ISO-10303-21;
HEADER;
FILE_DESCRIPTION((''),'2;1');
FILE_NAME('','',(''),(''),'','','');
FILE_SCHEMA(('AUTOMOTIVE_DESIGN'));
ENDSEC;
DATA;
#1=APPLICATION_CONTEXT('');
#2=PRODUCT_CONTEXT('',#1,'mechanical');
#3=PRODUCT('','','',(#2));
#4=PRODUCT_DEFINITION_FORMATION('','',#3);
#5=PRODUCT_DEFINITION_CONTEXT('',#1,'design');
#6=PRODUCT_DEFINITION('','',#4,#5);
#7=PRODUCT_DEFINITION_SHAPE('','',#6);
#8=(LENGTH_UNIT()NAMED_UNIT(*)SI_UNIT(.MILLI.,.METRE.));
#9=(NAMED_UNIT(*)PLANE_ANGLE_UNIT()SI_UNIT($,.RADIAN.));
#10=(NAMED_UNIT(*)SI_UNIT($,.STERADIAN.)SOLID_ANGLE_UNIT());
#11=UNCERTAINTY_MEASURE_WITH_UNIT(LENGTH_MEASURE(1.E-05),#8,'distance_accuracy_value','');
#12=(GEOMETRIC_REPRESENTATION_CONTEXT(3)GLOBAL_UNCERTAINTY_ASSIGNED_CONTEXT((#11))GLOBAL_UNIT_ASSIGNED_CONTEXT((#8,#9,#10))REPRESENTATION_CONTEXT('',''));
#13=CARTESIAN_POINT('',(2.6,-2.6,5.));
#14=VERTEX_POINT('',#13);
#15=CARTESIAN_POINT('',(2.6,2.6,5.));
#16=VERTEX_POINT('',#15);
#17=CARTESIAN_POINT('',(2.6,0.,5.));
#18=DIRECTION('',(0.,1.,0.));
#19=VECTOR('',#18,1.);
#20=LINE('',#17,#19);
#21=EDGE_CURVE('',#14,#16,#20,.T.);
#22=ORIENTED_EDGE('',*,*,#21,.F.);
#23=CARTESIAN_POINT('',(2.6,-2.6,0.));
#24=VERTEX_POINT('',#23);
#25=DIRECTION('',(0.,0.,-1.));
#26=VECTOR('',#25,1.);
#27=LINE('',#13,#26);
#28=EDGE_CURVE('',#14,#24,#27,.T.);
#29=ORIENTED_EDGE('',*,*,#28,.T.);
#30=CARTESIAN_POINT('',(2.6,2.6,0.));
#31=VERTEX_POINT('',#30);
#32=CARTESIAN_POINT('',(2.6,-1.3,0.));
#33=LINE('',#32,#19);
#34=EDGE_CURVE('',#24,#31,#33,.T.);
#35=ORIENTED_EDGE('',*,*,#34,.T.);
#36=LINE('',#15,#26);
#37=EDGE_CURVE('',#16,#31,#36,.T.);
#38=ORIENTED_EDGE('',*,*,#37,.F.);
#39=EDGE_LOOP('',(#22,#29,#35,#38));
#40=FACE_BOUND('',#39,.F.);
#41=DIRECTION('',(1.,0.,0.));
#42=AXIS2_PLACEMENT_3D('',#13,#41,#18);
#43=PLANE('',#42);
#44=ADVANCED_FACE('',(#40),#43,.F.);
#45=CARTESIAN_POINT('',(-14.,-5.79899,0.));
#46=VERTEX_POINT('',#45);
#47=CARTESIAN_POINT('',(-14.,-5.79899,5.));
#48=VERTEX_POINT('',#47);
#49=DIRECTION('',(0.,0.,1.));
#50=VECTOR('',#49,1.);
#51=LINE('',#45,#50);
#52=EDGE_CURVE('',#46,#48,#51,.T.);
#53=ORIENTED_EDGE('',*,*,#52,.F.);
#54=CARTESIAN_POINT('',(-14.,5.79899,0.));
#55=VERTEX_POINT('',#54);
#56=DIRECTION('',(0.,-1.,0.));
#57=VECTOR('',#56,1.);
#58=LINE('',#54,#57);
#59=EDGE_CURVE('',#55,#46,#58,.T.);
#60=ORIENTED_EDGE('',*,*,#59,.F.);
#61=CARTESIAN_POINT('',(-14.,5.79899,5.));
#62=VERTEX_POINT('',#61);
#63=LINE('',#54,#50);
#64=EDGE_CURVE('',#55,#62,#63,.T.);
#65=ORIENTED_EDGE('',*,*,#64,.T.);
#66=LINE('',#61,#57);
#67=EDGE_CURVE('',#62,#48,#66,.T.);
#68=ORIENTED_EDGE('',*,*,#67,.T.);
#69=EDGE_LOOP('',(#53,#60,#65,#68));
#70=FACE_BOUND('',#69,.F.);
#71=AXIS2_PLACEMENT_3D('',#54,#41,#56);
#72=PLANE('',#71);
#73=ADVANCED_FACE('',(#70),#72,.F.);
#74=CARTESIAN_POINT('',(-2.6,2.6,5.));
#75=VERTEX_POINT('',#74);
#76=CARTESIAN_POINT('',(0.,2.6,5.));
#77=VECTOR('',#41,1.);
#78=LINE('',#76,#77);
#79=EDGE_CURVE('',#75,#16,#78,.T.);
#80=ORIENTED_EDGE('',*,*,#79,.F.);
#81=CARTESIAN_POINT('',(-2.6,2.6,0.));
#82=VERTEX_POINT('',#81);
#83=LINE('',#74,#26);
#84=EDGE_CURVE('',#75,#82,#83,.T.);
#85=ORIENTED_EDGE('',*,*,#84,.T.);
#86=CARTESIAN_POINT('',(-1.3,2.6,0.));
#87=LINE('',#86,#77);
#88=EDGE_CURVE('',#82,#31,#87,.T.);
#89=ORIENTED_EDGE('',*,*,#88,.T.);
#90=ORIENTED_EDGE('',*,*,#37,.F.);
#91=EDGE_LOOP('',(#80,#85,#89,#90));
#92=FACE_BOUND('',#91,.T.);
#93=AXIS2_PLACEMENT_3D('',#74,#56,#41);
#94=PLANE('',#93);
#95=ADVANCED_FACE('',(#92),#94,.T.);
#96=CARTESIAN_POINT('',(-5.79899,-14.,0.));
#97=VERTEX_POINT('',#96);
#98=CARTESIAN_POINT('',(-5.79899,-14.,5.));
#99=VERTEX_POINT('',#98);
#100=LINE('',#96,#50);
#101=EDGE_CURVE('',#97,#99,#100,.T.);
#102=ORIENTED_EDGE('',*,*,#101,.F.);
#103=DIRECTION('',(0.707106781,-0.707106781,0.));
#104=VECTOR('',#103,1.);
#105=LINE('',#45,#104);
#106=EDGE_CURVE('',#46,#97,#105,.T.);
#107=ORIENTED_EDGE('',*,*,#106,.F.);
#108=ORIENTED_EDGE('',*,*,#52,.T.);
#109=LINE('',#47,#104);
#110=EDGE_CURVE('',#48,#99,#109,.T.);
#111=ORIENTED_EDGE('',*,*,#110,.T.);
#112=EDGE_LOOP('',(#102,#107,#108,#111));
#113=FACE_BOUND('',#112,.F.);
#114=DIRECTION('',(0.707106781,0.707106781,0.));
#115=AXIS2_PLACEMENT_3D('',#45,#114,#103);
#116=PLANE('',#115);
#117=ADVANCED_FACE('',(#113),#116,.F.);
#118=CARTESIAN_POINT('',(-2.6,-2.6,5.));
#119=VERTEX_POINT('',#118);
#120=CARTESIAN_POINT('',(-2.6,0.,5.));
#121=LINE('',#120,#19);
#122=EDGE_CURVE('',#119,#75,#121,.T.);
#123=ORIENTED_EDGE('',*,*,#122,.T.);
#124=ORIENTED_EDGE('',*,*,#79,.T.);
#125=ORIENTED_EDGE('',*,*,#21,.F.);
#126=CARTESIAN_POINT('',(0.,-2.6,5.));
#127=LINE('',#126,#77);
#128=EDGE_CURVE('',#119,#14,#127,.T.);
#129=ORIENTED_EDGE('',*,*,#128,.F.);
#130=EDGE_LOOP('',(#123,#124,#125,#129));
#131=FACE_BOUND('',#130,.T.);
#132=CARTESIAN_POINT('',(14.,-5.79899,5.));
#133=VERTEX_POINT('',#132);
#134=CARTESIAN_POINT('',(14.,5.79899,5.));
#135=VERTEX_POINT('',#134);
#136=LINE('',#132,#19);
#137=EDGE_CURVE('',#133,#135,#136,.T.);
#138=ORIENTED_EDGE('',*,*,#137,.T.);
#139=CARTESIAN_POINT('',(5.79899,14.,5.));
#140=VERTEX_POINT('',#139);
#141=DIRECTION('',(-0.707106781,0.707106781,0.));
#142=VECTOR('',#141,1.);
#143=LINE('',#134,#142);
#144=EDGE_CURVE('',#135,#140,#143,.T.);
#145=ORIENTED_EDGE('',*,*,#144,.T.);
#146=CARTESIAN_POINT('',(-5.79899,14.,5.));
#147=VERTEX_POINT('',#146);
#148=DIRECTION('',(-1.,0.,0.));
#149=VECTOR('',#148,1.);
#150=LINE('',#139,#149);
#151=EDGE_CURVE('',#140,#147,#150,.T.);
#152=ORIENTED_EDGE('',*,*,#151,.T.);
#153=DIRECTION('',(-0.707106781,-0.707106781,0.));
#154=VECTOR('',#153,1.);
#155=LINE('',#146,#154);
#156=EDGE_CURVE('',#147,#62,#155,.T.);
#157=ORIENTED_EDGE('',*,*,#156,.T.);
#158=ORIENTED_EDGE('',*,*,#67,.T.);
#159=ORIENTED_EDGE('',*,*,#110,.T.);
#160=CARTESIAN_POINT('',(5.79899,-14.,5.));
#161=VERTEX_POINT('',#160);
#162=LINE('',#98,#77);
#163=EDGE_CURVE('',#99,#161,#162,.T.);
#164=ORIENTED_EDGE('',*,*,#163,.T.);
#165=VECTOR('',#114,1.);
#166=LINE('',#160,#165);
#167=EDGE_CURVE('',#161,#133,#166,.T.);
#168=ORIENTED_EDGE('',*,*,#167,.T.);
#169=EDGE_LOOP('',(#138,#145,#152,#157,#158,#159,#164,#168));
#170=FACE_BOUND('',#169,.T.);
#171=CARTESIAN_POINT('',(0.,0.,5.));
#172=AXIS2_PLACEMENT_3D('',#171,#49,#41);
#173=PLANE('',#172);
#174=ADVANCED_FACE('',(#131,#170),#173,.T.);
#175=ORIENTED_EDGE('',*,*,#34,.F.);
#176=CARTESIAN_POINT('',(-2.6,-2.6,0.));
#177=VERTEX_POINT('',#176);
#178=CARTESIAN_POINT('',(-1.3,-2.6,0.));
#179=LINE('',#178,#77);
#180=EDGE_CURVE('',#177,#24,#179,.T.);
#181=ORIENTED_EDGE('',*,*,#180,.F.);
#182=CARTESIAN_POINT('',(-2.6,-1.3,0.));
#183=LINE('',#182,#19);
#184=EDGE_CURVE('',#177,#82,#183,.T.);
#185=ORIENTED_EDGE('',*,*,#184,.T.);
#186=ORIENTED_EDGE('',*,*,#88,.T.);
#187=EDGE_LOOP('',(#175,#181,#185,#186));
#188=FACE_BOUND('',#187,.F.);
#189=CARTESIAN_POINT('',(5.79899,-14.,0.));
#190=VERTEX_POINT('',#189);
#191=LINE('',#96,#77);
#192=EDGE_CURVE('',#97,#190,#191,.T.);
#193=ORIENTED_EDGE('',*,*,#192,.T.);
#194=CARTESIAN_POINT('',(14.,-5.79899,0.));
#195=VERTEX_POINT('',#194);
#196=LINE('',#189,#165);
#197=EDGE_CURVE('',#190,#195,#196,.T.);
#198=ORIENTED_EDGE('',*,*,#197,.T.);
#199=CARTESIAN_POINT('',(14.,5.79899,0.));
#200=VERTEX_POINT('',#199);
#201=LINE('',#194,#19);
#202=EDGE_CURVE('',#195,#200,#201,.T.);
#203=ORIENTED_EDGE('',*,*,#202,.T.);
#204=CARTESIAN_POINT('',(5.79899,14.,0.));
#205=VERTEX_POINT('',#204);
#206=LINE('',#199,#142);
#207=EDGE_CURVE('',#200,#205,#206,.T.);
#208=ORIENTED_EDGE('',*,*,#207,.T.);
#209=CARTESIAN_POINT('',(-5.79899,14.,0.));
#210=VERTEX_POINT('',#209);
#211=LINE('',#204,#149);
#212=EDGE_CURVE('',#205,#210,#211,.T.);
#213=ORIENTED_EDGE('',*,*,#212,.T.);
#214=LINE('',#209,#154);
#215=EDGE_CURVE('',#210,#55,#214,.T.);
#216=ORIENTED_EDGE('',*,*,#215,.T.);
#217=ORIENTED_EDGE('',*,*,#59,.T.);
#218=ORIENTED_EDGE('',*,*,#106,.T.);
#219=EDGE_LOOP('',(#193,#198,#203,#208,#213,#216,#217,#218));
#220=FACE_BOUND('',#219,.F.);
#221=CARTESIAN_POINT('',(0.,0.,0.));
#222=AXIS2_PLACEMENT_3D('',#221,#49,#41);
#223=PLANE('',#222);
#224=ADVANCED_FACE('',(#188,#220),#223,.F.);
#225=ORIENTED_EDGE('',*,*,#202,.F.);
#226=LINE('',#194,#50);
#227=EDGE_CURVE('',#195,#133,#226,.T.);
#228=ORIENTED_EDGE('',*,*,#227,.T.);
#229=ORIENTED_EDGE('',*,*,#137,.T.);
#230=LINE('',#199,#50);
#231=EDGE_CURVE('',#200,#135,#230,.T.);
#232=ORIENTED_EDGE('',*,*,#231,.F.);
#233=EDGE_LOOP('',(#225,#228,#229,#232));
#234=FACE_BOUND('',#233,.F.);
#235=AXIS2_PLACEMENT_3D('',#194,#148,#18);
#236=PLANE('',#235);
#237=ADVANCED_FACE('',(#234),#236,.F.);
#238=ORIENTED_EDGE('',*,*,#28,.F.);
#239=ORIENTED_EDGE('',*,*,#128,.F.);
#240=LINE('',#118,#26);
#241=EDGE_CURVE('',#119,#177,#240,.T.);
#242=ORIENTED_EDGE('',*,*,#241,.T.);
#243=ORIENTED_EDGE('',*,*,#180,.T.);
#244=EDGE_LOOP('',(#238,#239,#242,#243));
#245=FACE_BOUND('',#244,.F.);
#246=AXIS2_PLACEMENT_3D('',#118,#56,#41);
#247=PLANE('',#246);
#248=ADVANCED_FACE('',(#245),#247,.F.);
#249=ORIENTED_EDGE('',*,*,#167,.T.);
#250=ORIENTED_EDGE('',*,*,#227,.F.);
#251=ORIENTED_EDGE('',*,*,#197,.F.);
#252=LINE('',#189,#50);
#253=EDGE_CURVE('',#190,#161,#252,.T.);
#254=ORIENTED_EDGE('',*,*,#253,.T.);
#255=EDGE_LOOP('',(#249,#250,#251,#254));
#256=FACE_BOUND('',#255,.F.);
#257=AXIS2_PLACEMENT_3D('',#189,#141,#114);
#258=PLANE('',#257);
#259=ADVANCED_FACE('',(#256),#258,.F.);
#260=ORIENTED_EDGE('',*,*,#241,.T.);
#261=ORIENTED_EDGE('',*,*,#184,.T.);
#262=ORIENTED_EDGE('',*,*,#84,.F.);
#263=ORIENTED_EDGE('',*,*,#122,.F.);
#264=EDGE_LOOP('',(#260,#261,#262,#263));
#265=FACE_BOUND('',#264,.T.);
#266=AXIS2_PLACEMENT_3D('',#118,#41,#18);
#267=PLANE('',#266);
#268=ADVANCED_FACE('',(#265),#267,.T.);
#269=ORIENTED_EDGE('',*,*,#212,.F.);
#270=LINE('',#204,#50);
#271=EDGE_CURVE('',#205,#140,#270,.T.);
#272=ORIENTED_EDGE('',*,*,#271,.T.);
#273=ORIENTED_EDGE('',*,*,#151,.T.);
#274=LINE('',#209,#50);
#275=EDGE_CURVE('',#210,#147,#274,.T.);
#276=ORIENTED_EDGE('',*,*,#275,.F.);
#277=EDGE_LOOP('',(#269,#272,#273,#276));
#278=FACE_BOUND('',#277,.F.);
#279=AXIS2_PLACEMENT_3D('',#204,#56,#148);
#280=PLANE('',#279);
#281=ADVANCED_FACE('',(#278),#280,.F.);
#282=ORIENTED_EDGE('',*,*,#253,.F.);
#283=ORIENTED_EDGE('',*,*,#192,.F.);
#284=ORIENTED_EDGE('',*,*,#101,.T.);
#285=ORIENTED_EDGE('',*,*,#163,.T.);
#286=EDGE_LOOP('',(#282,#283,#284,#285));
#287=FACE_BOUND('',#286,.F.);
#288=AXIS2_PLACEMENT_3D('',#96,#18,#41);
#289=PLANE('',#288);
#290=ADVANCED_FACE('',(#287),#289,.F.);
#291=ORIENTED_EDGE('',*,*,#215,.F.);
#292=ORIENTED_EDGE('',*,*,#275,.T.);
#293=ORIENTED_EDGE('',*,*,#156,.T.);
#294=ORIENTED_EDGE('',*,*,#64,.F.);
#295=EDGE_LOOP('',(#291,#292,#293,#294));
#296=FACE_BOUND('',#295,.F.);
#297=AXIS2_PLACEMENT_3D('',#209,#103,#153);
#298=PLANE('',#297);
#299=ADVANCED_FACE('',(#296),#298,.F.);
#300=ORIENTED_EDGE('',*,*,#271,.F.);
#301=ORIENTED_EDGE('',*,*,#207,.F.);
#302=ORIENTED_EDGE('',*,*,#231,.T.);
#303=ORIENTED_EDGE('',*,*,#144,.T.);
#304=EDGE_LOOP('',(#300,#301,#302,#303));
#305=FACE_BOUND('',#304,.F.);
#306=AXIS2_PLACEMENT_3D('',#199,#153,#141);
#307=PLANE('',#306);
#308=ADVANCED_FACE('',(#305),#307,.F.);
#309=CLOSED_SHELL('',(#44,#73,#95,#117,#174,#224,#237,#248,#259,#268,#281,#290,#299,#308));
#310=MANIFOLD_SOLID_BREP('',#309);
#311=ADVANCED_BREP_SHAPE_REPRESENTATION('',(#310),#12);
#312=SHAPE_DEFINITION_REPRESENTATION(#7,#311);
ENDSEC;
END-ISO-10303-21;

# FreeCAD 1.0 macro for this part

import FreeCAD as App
import Part
import Sketcher

V = App.Vector

doc = App.newDocument("Part")
params = doc.addObject("Spreadsheet::Sheet", "Params")
for row, (alias, value) in enumerate([
    ("pad1_length", "5 mm"),
    ("sketch2_width", "5.2 mm"),
    ("pocket1_length", "25 mm"),
], start=1):
    params.set(f"A{row}", alias)
    params.set(f"B{row}", "=" + value)
    params.setAlias(f"B{row}", alias)

body = doc.addObject("PartDesign::Body", "Body")

sketch1 = doc.addObject("Sketcher::SketchObject", "Sketch")
body.addObject(sketch1)
sketch1.AttachmentSupport = (doc.XY_Plane, [""])
sketch1.MapMode = "FlatFace"
sketch1.addGeometry([
    Part.LineSegment(V(-5.79899, -14, 0), V(5.79899, -14, 0)),
    Part.LineSegment(V(5.79899, -14, 0), V(14, -5.79899, 0)),
    Part.LineSegment(V(14, -5.79899, 0), V(14, 5.79899, 0)),
    Part.LineSegment(V(14, 5.79899, 0), V(5.79899, 14, 0)),
    Part.LineSegment(V(5.79899, 14, 0), V(-5.79899, 14, 0)),
    Part.LineSegment(V(-5.79899, 14, 0), V(-14, 5.79899, 0)),
    Part.LineSegment(V(-14, 5.79899, 0), V(-14, -5.79899, 0)),
    Part.LineSegment(V(-14, -5.79899, 0), V(-5.79899, -14, 0)),
], False)
sketch1.addConstraint([
    Sketcher.Constraint("Coincident", 0, 2, 1, 1),
    Sketcher.Constraint("Coincident", 1, 2, 2, 1),
    Sketcher.Constraint("Coincident", 2, 2, 3, 1),
    Sketcher.Constraint("Coincident", 3, 2, 4, 1),
    Sketcher.Constraint("Coincident", 4, 2, 5, 1),
    Sketcher.Constraint("Coincident", 5, 2, 6, 1),
    Sketcher.Constraint("Coincident", 6, 2, 7, 1),
    Sketcher.Constraint("Coincident", 7, 2, 0, 1),
    Sketcher.Constraint("Horizontal", 0),
    Sketcher.Constraint("Vertical", 2),
    Sketcher.Constraint("Horizontal", 4),
    Sketcher.Constraint("Vertical", 6),
    Sketcher.Constraint("Symmetric", 0, 2, 4, 2, -1, 1),
    Sketcher.Constraint("Symmetric", 1, 2, 5, 2, -1, 1),
    Sketcher.Constraint("Perpendicular", 1, 3),
    Sketcher.Constraint("Perpendicular", 5, 7),
    Sketcher.Constraint("Horizontal", 2, 2, 5, 2),
    Sketcher.Constraint("Horizontal", 1, 2, 6, 2),
    Sketcher.Constraint("Vertical", 0, 2, 3, 2),
    Sketcher.Constraint("Equal", 4, 2),
    Sketcher.Constraint("DistanceY", 0, 2, -1, 1, 14.0),
    Sketcher.Constraint("DistanceX", 0, 1, 0, 2, 11.59798),
])
pad1 = doc.addObject("PartDesign::Pad", "Pad")
body.addObject(pad1)
pad1.Profile = sketch1
pad1.setExpression("Length", "Params.pad1_length")

sketch2 = doc.addObject("Sketcher::SketchObject", "Sketch001")
body.addObject(sketch2)
sketch2.AttachmentSupport = (doc.XY_Plane, [""])
sketch2.MapMode = "FlatFace"
sketch2.AttachmentOffset = App.Placement(V(0, 0, 5), App.Rotation())
sketch2.addGeometry([
    Part.LineSegment(V(-2.6, 2.6, 0), V(-2.6, -2.6, 0)),
    Part.LineSegment(V(-2.6, -2.6, 0), V(2.6, -2.6, 0)),
    Part.LineSegment(V(2.6, -2.6, 0), V(2.6, 2.6, 0)),
    Part.LineSegment(V(2.6, 2.6, 0), V(-2.6, 2.6, 0)),
], False)
sketch2.addConstraint([
    Sketcher.Constraint("Coincident", 0, 2, 1, 1),
    Sketcher.Constraint("Coincident", 1, 2, 2, 1),
    Sketcher.Constraint("Coincident", 2, 2, 3, 1),
    Sketcher.Constraint("Coincident", 3, 2, 0, 1),
    Sketcher.Constraint("Vertical", 0),
    Sketcher.Constraint("Horizontal", 1),
    Sketcher.Constraint("Vertical", 2),
    Sketcher.Constraint("Horizontal", 3),
    Sketcher.Constraint("Symmetric", 0, 2, 2, 2, -1, 1),
    Sketcher.Constraint("Equal", 3, 0),
    Sketcher.Constraint("DistanceX", 1, 1, 1, 2, 5.2),
])
sketch2.setExpression("Constraints[10]", "Params.sketch2_width")
pocket1 = doc.addObject("PartDesign::Pocket", "Pocket")
body.addObject(pocket1)
pocket1.Profile = sketch2
pocket1.setExpression("Length", "Params.pocket1_length")

doc.recompute()
